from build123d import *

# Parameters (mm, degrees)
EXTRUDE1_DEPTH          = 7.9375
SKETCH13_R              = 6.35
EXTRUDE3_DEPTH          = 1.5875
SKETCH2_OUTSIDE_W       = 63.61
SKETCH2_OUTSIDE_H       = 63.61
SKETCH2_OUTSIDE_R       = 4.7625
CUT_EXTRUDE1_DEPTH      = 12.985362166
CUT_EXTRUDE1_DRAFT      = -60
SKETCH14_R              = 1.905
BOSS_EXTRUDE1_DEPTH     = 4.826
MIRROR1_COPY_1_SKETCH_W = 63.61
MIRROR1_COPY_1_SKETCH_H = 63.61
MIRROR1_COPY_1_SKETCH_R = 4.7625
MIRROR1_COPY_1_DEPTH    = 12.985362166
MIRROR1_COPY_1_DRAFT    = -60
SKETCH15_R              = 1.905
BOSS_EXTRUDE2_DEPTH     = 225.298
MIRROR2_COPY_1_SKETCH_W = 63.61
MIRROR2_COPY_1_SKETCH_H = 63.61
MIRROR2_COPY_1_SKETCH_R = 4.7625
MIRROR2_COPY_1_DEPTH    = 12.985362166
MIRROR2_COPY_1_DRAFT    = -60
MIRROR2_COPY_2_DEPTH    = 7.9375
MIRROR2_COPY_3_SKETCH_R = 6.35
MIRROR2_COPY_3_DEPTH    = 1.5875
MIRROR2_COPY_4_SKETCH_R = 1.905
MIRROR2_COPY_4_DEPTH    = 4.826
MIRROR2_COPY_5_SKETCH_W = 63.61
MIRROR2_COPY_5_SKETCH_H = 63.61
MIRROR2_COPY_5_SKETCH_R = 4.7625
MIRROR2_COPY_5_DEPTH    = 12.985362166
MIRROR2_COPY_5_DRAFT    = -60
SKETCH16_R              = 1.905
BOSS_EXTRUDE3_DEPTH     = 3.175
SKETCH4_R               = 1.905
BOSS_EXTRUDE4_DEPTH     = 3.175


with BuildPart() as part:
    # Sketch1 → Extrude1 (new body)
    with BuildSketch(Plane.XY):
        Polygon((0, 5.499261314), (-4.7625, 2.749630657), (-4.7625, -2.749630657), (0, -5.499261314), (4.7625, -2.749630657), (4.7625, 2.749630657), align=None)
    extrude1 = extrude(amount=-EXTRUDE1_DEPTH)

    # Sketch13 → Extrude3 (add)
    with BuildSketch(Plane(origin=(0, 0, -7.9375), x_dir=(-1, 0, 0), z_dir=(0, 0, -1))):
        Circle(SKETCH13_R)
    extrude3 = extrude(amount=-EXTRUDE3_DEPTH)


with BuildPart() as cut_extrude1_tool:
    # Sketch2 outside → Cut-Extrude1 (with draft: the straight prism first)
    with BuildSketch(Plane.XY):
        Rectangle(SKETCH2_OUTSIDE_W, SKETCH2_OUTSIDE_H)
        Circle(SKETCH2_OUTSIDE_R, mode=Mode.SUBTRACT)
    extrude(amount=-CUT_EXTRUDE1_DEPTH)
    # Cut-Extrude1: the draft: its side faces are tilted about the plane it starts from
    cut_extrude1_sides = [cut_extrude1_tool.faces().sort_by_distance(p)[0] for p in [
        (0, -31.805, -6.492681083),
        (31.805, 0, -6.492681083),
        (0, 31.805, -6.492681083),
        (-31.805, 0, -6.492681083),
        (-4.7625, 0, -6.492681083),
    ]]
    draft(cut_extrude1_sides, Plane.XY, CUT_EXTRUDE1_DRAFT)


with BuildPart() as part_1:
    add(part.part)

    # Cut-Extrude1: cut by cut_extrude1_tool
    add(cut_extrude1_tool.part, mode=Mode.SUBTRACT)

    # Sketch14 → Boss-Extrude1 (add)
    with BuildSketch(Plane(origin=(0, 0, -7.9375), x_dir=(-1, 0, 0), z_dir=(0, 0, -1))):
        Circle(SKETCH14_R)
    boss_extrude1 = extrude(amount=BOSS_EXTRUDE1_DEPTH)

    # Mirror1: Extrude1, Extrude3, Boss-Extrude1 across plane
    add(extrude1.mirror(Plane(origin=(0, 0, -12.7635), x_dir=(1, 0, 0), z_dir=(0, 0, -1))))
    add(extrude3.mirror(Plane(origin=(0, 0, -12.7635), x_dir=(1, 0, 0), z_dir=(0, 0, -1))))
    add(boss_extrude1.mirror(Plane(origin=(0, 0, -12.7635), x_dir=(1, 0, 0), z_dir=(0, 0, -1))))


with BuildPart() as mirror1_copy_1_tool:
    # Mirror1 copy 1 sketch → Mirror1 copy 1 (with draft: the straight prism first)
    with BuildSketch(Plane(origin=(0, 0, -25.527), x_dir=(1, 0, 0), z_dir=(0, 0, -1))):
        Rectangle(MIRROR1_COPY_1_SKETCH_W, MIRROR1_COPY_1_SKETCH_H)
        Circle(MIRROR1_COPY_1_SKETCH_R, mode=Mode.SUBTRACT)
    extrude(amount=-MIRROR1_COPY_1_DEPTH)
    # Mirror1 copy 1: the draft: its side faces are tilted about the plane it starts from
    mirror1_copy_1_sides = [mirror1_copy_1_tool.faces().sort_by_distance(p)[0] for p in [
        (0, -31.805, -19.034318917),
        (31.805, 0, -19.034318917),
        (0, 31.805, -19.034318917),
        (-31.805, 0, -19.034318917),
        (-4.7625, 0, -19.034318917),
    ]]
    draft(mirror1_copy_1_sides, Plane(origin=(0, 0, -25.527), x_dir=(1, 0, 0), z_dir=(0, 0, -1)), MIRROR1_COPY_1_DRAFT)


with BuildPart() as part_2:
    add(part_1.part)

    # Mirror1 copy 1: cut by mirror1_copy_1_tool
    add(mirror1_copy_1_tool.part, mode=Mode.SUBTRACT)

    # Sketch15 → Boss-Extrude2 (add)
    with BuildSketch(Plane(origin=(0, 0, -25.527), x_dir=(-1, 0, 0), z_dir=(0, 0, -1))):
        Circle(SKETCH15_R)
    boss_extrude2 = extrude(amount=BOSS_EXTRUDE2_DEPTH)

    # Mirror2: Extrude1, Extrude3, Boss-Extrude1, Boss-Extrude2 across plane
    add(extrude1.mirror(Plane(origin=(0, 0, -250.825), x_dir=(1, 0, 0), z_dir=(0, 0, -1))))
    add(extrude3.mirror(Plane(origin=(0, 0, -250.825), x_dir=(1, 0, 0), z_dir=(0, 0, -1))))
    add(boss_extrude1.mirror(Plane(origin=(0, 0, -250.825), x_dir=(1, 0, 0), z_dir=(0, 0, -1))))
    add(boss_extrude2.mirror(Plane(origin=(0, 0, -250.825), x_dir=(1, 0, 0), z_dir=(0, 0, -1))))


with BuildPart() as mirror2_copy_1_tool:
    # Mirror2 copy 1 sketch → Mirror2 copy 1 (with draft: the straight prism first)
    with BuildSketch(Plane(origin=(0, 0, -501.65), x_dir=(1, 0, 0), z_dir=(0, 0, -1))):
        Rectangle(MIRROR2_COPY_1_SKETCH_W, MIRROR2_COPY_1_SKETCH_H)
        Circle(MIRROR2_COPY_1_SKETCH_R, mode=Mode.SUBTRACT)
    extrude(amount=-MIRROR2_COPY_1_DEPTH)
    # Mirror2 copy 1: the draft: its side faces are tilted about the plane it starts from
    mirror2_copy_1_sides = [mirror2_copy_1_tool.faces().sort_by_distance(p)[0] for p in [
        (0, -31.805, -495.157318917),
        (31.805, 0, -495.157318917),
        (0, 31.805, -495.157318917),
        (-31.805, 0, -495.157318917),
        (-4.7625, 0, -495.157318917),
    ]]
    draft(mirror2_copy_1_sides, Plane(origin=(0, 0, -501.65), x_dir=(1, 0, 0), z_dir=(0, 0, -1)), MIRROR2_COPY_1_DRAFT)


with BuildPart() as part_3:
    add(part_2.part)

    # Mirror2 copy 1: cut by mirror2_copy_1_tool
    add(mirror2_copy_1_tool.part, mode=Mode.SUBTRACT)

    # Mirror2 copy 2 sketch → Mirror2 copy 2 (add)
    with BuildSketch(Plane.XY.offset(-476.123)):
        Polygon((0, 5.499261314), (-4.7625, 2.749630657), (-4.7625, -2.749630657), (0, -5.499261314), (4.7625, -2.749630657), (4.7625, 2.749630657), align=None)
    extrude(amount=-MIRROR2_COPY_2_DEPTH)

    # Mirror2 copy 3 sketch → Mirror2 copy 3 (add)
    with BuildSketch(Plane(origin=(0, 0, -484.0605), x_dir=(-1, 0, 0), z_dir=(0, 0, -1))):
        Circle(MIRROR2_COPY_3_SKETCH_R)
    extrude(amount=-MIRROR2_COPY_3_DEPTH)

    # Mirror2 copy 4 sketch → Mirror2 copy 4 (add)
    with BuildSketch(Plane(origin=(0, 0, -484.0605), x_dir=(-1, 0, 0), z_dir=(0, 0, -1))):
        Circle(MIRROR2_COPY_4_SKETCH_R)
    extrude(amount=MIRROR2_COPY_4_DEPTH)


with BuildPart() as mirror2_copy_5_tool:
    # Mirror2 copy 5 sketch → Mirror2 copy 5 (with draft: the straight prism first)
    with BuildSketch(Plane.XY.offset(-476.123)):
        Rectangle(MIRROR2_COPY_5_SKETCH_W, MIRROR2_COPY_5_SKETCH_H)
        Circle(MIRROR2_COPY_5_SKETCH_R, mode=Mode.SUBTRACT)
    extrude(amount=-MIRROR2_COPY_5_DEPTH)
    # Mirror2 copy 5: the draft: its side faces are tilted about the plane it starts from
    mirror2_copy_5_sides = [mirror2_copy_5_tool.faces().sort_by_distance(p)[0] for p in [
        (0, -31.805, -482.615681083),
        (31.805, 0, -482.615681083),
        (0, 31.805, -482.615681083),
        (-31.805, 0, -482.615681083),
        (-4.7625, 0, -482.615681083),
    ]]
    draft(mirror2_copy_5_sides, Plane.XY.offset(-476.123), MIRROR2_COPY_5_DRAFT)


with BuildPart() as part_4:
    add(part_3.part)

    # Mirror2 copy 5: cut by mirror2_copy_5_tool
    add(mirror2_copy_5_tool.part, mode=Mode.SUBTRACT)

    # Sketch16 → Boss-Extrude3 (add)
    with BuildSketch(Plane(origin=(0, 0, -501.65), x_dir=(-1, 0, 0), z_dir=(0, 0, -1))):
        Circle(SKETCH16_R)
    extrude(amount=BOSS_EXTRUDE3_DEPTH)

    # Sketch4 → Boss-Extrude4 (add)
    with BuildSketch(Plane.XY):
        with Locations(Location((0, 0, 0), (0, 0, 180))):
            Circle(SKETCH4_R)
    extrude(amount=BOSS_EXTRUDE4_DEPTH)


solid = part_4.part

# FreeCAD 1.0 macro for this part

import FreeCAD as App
import Part
import Sketcher

V = App.Vector
Q = App.Units.Quantity


def faces_at(feature, points):
    """Names of the faces that lie closest to the given points."""
    faces = feature.Shape.Faces
    near = lambda p: min(range(len(faces)), key=lambda i: faces[i].distToShape(Part.Vertex(*p))[0])
    return sorted({f"Face{near(p) + 1}" for p in points})

doc = App.newDocument("Part")
body = doc.addObject("PartDesign::Body", "Body")

# Sketch on XY plane
sketch1 = body.newObject("Sketcher::SketchObject", "Sketch")
sketch1.AttachmentSupport = (doc.getObject("XY_Plane"), [""])
sketch1.MapMode = "FlatFace"
sketch1.addGeometry([
    Part.LineSegment(V(0, 5.499261, 0), V(-4.7625, 2.749631, 0)),  # 0
    Part.LineSegment(V(-4.7625, 2.749631, 0), V(-4.7625, -2.749631, 0)),  # 1
    Part.LineSegment(V(-4.7625, -2.749631, 0), V(0, -5.499261, 0)),  # 2
    Part.LineSegment(V(0, -5.499261, 0), V(4.7625, -2.749631, 0)),  # 3
    Part.LineSegment(V(4.7625, -2.749631, 0), V(4.7625, 2.749631, 0)),  # 4
    Part.LineSegment(V(4.7625, 2.749631, 0), V(0, 5.499261, 0)),  # 5
], False)
sketch1.addConstraint([
    Sketcher.Constraint("Coincident", 0, 2, 1, 1),
    Sketcher.Constraint("Coincident", 1, 2, 2, 1),
    Sketcher.Constraint("Coincident", 2, 2, 3, 1),
    Sketcher.Constraint("Coincident", 3, 2, 4, 1),
    Sketcher.Constraint("Coincident", 4, 2, 5, 1),
    Sketcher.Constraint("Coincident", 5, 2, 0, 1),
    Sketcher.Constraint("Vertical", 1),
    Sketcher.Constraint("Vertical", 4),
    Sketcher.Constraint("Symmetric", 0, 2, 3, 2, -1, 1),
    Sketcher.Constraint("Symmetric", 2, 2, 5, 2, -1, 1),
    Sketcher.Constraint("PointOnObject", 2, 2, -2),
    Sketcher.Constraint("Parallel", 2, 5),
    Sketcher.Constraint("Horizontal", 1, 2, 3, 2),
    Sketcher.Constraint("Angle", 0, Q("-150 deg")),
    Sketcher.Constraint("DistanceX", 0, 2, -1, 1, Q("0.1875 in")),
    Sketcher.Constraint("DistanceY", 1, 2, 1, 1, 5.499261),
])
pad1 = body.newObject("PartDesign::Pad", "Pad")
pad1.Profile = sketch1
pad1.Length = Q("0.3125 in")
pad1.Reversed = True

# Sketch on XY plane
sketch2 = body.newObject("Sketcher::SketchObject", "Sketch001")
sketch2.AttachmentSupport = (doc.getObject("XY_Plane"), [""])
sketch2.MapMode = "FlatFace"
sketch2.AttachmentOffset = App.Placement(V(0, 0, -0.3125 * 25.4), App.Rotation())
sketch2.addGeometry(Part.Circle(V(0, 0, 0), V(0, 0, 1), 6.35), False)
sketch2.addConstraint([
    Sketcher.Constraint("Coincident", 0, 3, -1, 1),
    Sketcher.Constraint("Diameter", 0, Q("0.5 in")),
])
pad2 = body.newObject("PartDesign::Pad", "Pad001")
pad2.Profile = sketch2
pad2.Length = Q("0.0625 in")
body2 = doc.addObject("PartDesign::Body", "Body001")

# Sketch on XY plane
sketch3 = body2.newObject("Sketcher::SketchObject", "Sketch002")
sketch3.AttachmentSupport = (doc.getObject("XY_Plane001"), [""])
sketch3.MapMode = "FlatFace"
sketch3.addGeometry([
    Part.LineSegment(V(-31.805, 31.805, 0), V(-31.805, -31.805, 0)),  # 0
    Part.LineSegment(V(-31.805, -31.805, 0), V(31.805, -31.805, 0)),  # 1
    Part.LineSegment(V(31.805, -31.805, 0), V(31.805, 31.805, 0)),  # 2
    Part.LineSegment(V(31.805, 31.805, 0), V(-31.805, 31.805, 0)),  # 3
    Part.Circle(V(0, 0, 0), V(0, 0, 1), 4.7625),  # 4
], False)
sketch3.addConstraint([
    Sketcher.Constraint("Coincident", 0, 2, 1, 1),
    Sketcher.Constraint("Coincident", 1, 2, 2, 1),
    Sketcher.Constraint("Coincident", 2, 2, 3, 1),
    Sketcher.Constraint("Coincident", 3, 2, 0, 1),
    Sketcher.Constraint("Vertical", 0),
    Sketcher.Constraint("Horizontal", 1),
    Sketcher.Constraint("Vertical", 2),
    Sketcher.Constraint("Horizontal", 3),
    Sketcher.Constraint("Coincident", 4, 3, -1, 1),
    Sketcher.Constraint("Symmetric", 0, 2, 2, 2, -1, 1),
    Sketcher.Constraint("Equal", 3, 0),
    Sketcher.Constraint("Diameter", 4, Q("0.375 in")),
    Sketcher.Constraint("DistanceX", 1, 1, 1, 2, 63.61),
])
pad3 = body2.newObject("PartDesign::Pad", "Pad002")
pad3.Profile = sketch3
pad3.Length = 12.985362
pad3.Reversed = True
doc.recompute()

draft = body2.newObject("PartDesign::Draft", "Draft")
draft.Base = (pad3, faces_at(pad3, [
    (0, -31.805, -6.493),
    (31.805, 0, -6.493),
    (0, 31.805, -6.493),
    (-31.805, 0, -6.493),
    (-4.763, 0, -6.493),
]))
draft.NeutralPlane = (doc.getObject("XY_Plane001"), [""])
draft.Angle = 60
draft.Reversed = True
doc.recompute()

boolean = body.newObject("PartDesign::Boolean", "Boolean")
boolean.Type = "Cut"
boolean.addObjects([body2])

# Sketch on XY plane
sketch4 = body.newObject("Sketcher::SketchObject", "Sketch003")
sketch4.AttachmentSupport = (doc.getObject("XY_Plane"), [""])
sketch4.MapMode = "FlatFace"
sketch4.AttachmentOffset = App.Placement(V(0, 0, -0.3125 * 25.4), App.Rotation())
sketch4.addGeometry(Part.Circle(V(0, 0, 0), V(0, 0, 1), 1.905), False)
sketch4.addConstraint([
    Sketcher.Constraint("Coincident", 0, 3, -1, 1),
    Sketcher.Constraint("Diameter", 0, Q("0.15 in")),
])
pad4 = body.newObject("PartDesign::Pad", "Pad003")
pad4.Profile = sketch4
pad4.Length = Q("0.19 in")
pad4.Reversed = True
doc.recompute()

datumplane = body.newObject("PartDesign::Plane", "DatumPlane")
datumplane.AttachmentSupport = (doc.getObject("XY_Plane"), [""])
datumplane.MapMode = "FlatFace"
datumplane.AttachmentOffset = App.Placement(V(0, 0, -0.5025 * 25.4), App.Rotation())
mirrored = body.newObject("PartDesign::Mirrored", "Mirrored")
mirrored.Originals = [pad1, pad2, pad4]
mirrored.MirrorPlane = (datumplane, [""])
body.Tip = mirrored
body3 = doc.addObject("PartDesign::Body", "Body002")

# Sketch on XY plane
sketch5 = body3.newObject("Sketcher::SketchObject", "Sketch004")
sketch5.AttachmentSupport = (doc.getObject("XY_Plane002"), [""])
sketch5.MapMode = "FlatFace"
sketch5.AttachmentOffset = App.Placement(V(0, 0, -1.005 * 25.4), App.Rotation())
sketch5.addGeometry([
    Part.LineSegment(V(-31.805, -31.805, 0), V(-31.805, 31.805, 0)),  # 0
    Part.LineSegment(V(-31.805, 31.805, 0), V(31.805, 31.805, 0)),  # 1
    Part.LineSegment(V(31.805, 31.805, 0), V(31.805, -31.805, 0)),  # 2
    Part.LineSegment(V(31.805, -31.805, 0), V(-31.805, -31.805, 0)),  # 3
    Part.Circle(V(0, 0, 0), V(0, 0, 1), 4.7625),  # 4
], False)
sketch5.addConstraint([
    Sketcher.Constraint("Coincident", 0, 2, 1, 1),
    Sketcher.Constraint("Coincident", 1, 2, 2, 1),
    Sketcher.Constraint("Coincident", 2, 2, 3, 1),
    Sketcher.Constraint("Coincident", 3, 2, 0, 1),
    Sketcher.Constraint("Vertical", 0),
    Sketcher.Constraint("Horizontal", 1),
    Sketcher.Constraint("Vertical", 2),
    Sketcher.Constraint("Horizontal", 3),
    Sketcher.Constraint("Coincident", 4, 3, -1, 1),
    Sketcher.Constraint("Symmetric", 0, 2, 2, 2, -1, 1),
    Sketcher.Constraint("Equal", 3, 0),
    Sketcher.Constraint("Diameter", 4, Q("0.375 in")),
    Sketcher.Constraint("DistanceX", 1, 1, 1, 2, 63.61),
])
pad5 = body3.newObject("PartDesign::Pad", "Pad004")
pad5.Profile = sketch5
pad5.Length = 12.985362
doc.recompute()

datumplane2 = body3.newObject("PartDesign::Plane", "DatumPlane001")
datumplane2.AttachmentSupport = (doc.getObject("XY_Plane002"), [""])
datumplane2.MapMode = "FlatFace"
datumplane2.AttachmentOffset = App.Placement(V(0, 0, -1.005 * 25.4), App.Rotation())
draft2 = body3.newObject("PartDesign::Draft", "Draft001")
draft2.Base = (pad5, faces_at(pad5, [
    (0, -31.805, -19.034),
    (31.805, 0, -19.034),
    (0, 31.805, -19.034),
    (-31.805, 0, -19.034),
    (-4.763, 0, -19.034),
]))
draft2.NeutralPlane = (datumplane2, [""])
draft2.Angle = 60
draft2.Reversed = False
body.AllowCompound = True
doc.recompute()

boolean2 = body.newObject("PartDesign::Boolean", "Boolean001")
boolean2.Type = "Cut"
boolean2.addObjects([body3])

# Sketch on XY plane
sketch6 = body.newObject("Sketcher::SketchObject", "Sketch005")
sketch6.AttachmentSupport = (doc.getObject("XY_Plane"), [""])
sketch6.MapMode = "FlatFace"
sketch6.AttachmentOffset = App.Placement(V(0, 0, -1.005 * 25.4), App.Rotation())
sketch6.addGeometry(Part.Circle(V(0, 0, 0), V(0, 0, 1), 1.905), False)
sketch6.addConstraint([
    Sketcher.Constraint("Coincident", 0, 3, -1, 1),
    Sketcher.Constraint("Diameter", 0, Q("0.15 in")),
])
pad6 = body.newObject("PartDesign::Pad", "Pad005")
pad6.Profile = sketch6
pad6.Length = Q("8.87 in")
pad6.Reversed = True
doc.recompute()

datumplane3 = body.newObject("PartDesign::Plane", "DatumPlane002")
datumplane3.AttachmentSupport = (doc.getObject("XY_Plane"), [""])
datumplane3.MapMode = "FlatFace"
datumplane3.AttachmentOffset = App.Placement(V(0, 0, -9.875 * 25.4), App.Rotation())
mirrored2 = body.newObject("PartDesign::Mirrored", "Mirrored001")
mirrored2.Originals = [pad1, pad2, pad4, pad6]
mirrored2.MirrorPlane = (datumplane3, [""])
body.Tip = mirrored2
body4 = doc.addObject("PartDesign::Body", "Body003")

# Sketch on XY plane
sketch7 = body4.newObject("Sketcher::SketchObject", "Sketch006")
sketch7.AttachmentSupport = (doc.getObject("XY_Plane003"), [""])
sketch7.MapMode = "FlatFace"
sketch7.AttachmentOffset = App.Placement(V(0, 0, -19.75 * 25.4), App.Rotation())
sketch7.addGeometry([
    Part.LineSegment(V(-31.805, -31.805, 0), V(-31.805, 31.805, 0)),  # 0
    Part.LineSegment(V(-31.805, 31.805, 0), V(31.805, 31.805, 0)),  # 1
    Part.LineSegment(V(31.805, 31.805, 0), V(31.805, -31.805, 0)),  # 2
    Part.LineSegment(V(31.805, -31.805, 0), V(-31.805, -31.805, 0)),  # 3
    Part.Circle(V(0, 0, 0), V(0, 0, 1), 4.7625),  # 4
], False)
sketch7.addConstraint([
    Sketcher.Constraint("Coincident", 0, 2, 1, 1),
    Sketcher.Constraint("Coincident", 1, 2, 2, 1),
    Sketcher.Constraint("Coincident", 2, 2, 3, 1),
    Sketcher.Constraint("Coincident", 3, 2, 0, 1),
    Sketcher.Constraint("Vertical", 0),
    Sketcher.Constraint("Horizontal", 1),
    Sketcher.Constraint("Vertical", 2),
    Sketcher.Constraint("Horizontal", 3),
    Sketcher.Constraint("Coincident", 4, 3, -1, 1),
    Sketcher.Constraint("Symmetric", 0, 2, 2, 2, -1, 1),
    Sketcher.Constraint("Equal", 3, 0),
    Sketcher.Constraint("Diameter", 4, Q("0.375 in")),
    Sketcher.Constraint("DistanceX", 1, 1, 1, 2, 63.61),
])
pad7 = body4.newObject("PartDesign::Pad", "Pad006")
pad7.Profile = sketch7
pad7.Length = 12.985362
doc.recompute()

datumplane4 = body4.newObject("PartDesign::Plane", "DatumPlane003")
datumplane4.AttachmentSupport = (doc.getObject("XY_Plane003"), [""])
datumplane4.MapMode = "FlatFace"
datumplane4.AttachmentOffset = App.Placement(V(0, 0, -19.75 * 25.4), App.Rotation())
draft3 = body4.newObject("PartDesign::Draft", "Draft002")
draft3.Base = (pad7, faces_at(pad7, [
    (0, -31.805, -495.157),
    (31.805, 0, -495.157),
    (0, 31.805, -495.157),
    (-31.805, 0, -495.157),
    (-4.763, 0, -495.157),
]))
draft3.NeutralPlane = (datumplane4, [""])
draft3.Angle = 60
draft3.Reversed = False
body.AllowCompound = True
doc.recompute()

boolean3 = body.newObject("PartDesign::Boolean", "Boolean002")
boolean3.Type = "Cut"
boolean3.addObjects([body4])

# Sketch on XY plane
sketch8 = body.newObject("Sketcher::SketchObject", "Sketch007")
sketch8.AttachmentSupport = (doc.getObject("XY_Plane"), [""])
sketch8.MapMode = "FlatFace"
sketch8.AttachmentOffset = App.Placement(V(0, 0, -18.745 * 25.4), App.Rotation())
sketch8.addGeometry([
    Part.LineSegment(V(0, 5.499261, 0), V(-4.7625, 2.749631, 0)),  # 0
    Part.LineSegment(V(-4.7625, 2.749631, 0), V(-4.7625, -2.749631, 0)),  # 1
    Part.LineSegment(V(-4.7625, -2.749631, 0), V(0, -5.499261, 0)),  # 2
    Part.LineSegment(V(0, -5.499261, 0), V(4.7625, -2.749631, 0)),  # 3
    Part.LineSegment(V(4.7625, -2.749631, 0), V(4.7625, 2.749631, 0)),  # 4
    Part.LineSegment(V(4.7625, 2.749631, 0), V(0, 5.499261, 0)),  # 5
], False)
sketch8.addConstraint([
    Sketcher.Constraint("Coincident", 0, 2, 1, 1),
    Sketcher.Constraint("Coincident", 1, 2, 2, 1),
    Sketcher.Constraint("Coincident", 2, 2, 3, 1),
    Sketcher.Constraint("Coincident", 3, 2, 4, 1),
    Sketcher.Constraint("Coincident", 4, 2, 5, 1),
    Sketcher.Constraint("Coincident", 5, 2, 0, 1),
    Sketcher.Constraint("Vertical", 1),
    Sketcher.Constraint("Vertical", 4),
    Sketcher.Constraint("Symmetric", 0, 2, 3, 2, -1, 1),
    Sketcher.Constraint("Symmetric", 2, 2, 5, 2, -1, 1),
    Sketcher.Constraint("PointOnObject", 2, 2, -2),
    Sketcher.Constraint("Parallel", 2, 5),
    Sketcher.Constraint("Horizontal", 1, 2, 3, 2),
    Sketcher.Constraint("Angle", 0, Q("-150 deg")),
    Sketcher.Constraint("DistanceX", 0, 2, -1, 1, Q("0.1875 in")),
    Sketcher.Constraint("DistanceY", 1, 2, 1, 1, 5.499261),
])
pad8 = body.newObject("PartDesign::Pad", "Pad007")
pad8.Profile = sketch8
pad8.Length = Q("0.3125 in")
pad8.Reversed = True

# Sketch on XY plane
sketch9 = body.newObject("Sketcher::SketchObject", "Sketch008")
sketch9.AttachmentSupport = (doc.getObject("XY_Plane"), [""])
sketch9.MapMode = "FlatFace"
sketch9.AttachmentOffset = App.Placement(V(0, 0, -19.0575 * 25.4), App.Rotation())
sketch9.addGeometry(Part.Circle(V(0, 0, 0), V(0, 0, 1), 6.35), False)
sketch9.addConstraint([
    Sketcher.Constraint("Coincident", 0, 3, -1, 1),
    Sketcher.Constraint("Diameter", 0, Q("0.5 in")),
])
pad9 = body.newObject("PartDesign::Pad", "Pad008")
pad9.Profile = sketch9
pad9.Length = Q("0.0625 in")

# Sketch on XY plane
sketch10 = body.newObject("Sketcher::SketchObject", "Sketch009")
sketch10.AttachmentSupport = (doc.getObject("XY_Plane"), [""])
sketch10.MapMode = "FlatFace"
sketch10.AttachmentOffset = App.Placement(V(0, 0, -19.0575 * 25.4), App.Rotation())
sketch10.addGeometry(Part.Circle(V(0, 0, 0), V(0, 0, 1), 1.905), False)
sketch10.addConstraint([
    Sketcher.Constraint("Coincident", 0, 3, -1, 1),
    Sketcher.Constraint("Diameter", 0, Q("0.15 in")),
])
pad10 = body.newObject("PartDesign::Pad", "Pad009")
pad10.Profile = sketch10
pad10.Length = Q("0.19 in")
pad10.Reversed = True
body5 = doc.addObject("PartDesign::Body", "Body004")

# Sketch on XY plane
sketch11 = body5.newObject("Sketcher::SketchObject", "Sketch010")
sketch11.AttachmentSupport = (doc.getObject("XY_Plane004"), [""])
sketch11.MapMode = "FlatFace"
sketch11.AttachmentOffset = App.Placement(V(0, 0, -18.745 * 25.4), App.Rotation())
sketch11.addGeometry([
    Part.LineSegment(V(-31.805, 31.805, 0), V(-31.805, -31.805, 0)),  # 0
    Part.LineSegment(V(-31.805, -31.805, 0), V(31.805, -31.805, 0)),  # 1
    Part.LineSegment(V(31.805, -31.805, 0), V(31.805, 31.805, 0)),  # 2
    Part.LineSegment(V(31.805, 31.805, 0), V(-31.805, 31.805, 0)),  # 3
    Part.Circle(V(0, 0, 0), V(0, 0, 1), 4.7625),  # 4
], False)
sketch11.addConstraint([
    Sketcher.Constraint("Coincident", 0, 2, 1, 1),
    Sketcher.Constraint("Coincident", 1, 2, 2, 1),
    Sketcher.Constraint("Coincident", 2, 2, 3, 1),
    Sketcher.Constraint("Coincident", 3, 2, 0, 1),
    Sketcher.Constraint("Vertical", 0),
    Sketcher.Constraint("Horizontal", 1),
    Sketcher.Constraint("Vertical", 2),
    Sketcher.Constraint("Horizontal", 3),
    Sketcher.Constraint("Coincident", 4, 3, -1, 1),
    Sketcher.Constraint("Symmetric", 0, 2, 2, 2, -1, 1),
    Sketcher.Constraint("Equal", 3, 0),
    Sketcher.Constraint("Diameter", 4, Q("0.375 in")),
    Sketcher.Constraint("DistanceX", 1, 1, 1, 2, 63.61),
])
pad11 = body5.newObject("PartDesign::Pad", "Pad010")
pad11.Profile = sketch11
pad11.Length = 12.985362
pad11.Reversed = True
doc.recompute()

datumplane5 = body5.newObject("PartDesign::Plane", "DatumPlane004")
datumplane5.AttachmentSupport = (doc.getObject("XY_Plane004"), [""])
datumplane5.MapMode = "FlatFace"
datumplane5.AttachmentOffset = App.Placement(V(0, 0, -18.745 * 25.4), App.Rotation())
draft4 = body5.newObject("PartDesign::Draft", "Draft003")
draft4.Base = (pad11, faces_at(pad11, [
    (0, -31.805, -482.616),
    (31.805, 0, -482.616),
    (0, 31.805, -482.616),
    (-31.805, 0, -482.616),
    (-4.763, 0, -482.616),
]))
draft4.NeutralPlane = (datumplane5, [""])
draft4.Angle = 60
draft4.Reversed = True
doc.recompute()

boolean4 = body.newObject("PartDesign::Boolean", "Boolean003")
boolean4.Type = "Cut"
boolean4.addObjects([body5])

# Sketch on XY plane
sketch12 = body.newObject("Sketcher::SketchObject", "Sketch011")
sketch12.AttachmentSupport = (doc.getObject("XY_Plane"), [""])
sketch12.MapMode = "FlatFace"
sketch12.AttachmentOffset = App.Placement(V(0, 0, -19.75 * 25.4), App.Rotation())
sketch12.addGeometry(Part.Circle(V(0, 0, 0), V(0, 0, 1), 1.905), False)
sketch12.addConstraint([
    Sketcher.Constraint("Coincident", 0, 3, -1, 1),
    Sketcher.Constraint("Diameter", 0, Q("0.15 in")),
])
pad12 = body.newObject("PartDesign::Pad", "Pad011")
pad12.Profile = sketch12
pad12.Length = Q("0.125 in")
pad12.Reversed = True

# Sketch on XY plane
sketch13 = body.newObject("Sketcher::SketchObject", "Sketch012")
sketch13.AttachmentSupport = (doc.getObject("XY_Plane"), [""])
sketch13.MapMode = "FlatFace"
sketch13.addGeometry(Part.Circle(V(0, 0, 0), V(0, 0, 1), 1.905), False)
sketch13.addConstraint([
    Sketcher.Constraint("Coincident", 0, 3, -1, 1),
    Sketcher.Constraint("Diameter", 0, Q("0.15 in")),
])
pad13 = body.newObject("PartDesign::Pad", "Pad012")
pad13.Profile = sketch13
pad13.Length = Q("0.125 in")

doc.recompute()
